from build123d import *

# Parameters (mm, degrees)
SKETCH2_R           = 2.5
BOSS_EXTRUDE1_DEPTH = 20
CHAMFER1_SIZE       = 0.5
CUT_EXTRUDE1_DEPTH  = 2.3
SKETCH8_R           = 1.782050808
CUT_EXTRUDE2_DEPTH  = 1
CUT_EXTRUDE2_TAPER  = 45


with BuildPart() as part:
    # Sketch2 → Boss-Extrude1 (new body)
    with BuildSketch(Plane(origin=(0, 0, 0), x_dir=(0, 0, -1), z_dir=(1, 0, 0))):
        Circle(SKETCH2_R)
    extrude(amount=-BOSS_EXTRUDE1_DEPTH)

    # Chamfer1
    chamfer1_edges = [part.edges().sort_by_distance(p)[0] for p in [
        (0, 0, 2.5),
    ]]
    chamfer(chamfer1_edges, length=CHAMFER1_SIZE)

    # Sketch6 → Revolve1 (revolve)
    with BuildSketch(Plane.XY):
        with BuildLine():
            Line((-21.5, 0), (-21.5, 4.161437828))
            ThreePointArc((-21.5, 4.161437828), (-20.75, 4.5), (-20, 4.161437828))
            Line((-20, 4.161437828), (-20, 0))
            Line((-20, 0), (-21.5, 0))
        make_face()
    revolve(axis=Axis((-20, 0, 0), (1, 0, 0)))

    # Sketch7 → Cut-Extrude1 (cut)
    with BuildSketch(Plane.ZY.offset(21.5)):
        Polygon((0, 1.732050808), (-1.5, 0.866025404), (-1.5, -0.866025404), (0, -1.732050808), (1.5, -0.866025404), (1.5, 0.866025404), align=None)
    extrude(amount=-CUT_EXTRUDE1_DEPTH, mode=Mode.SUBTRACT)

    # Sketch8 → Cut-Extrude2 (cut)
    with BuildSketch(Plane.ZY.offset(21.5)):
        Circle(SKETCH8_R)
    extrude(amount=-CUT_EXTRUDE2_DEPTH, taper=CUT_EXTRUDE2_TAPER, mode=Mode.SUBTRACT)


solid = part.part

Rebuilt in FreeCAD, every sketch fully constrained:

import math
import FreeCAD as App
import Part
import Sketcher
Q = App.Units.Quantity


def edges_at(feature, points):
    """Names of the edges that pass closest to the given points."""
    edges = feature.Shape.Edges
    near = lambda p: min(range(len(edges)), key=lambda i: edges[i].distToShape(Part.Vertex(*p))[0])
    return sorted({f"Edge{near(p) + 1}" for p in points})

doc = App.newDocument("Part")
body = doc.addObject("PartDesign::Body", "Body")

sketch1 = body.newObject("Sketcher::SketchObject", "Sketch")
sketch1.AttachmentSupport = (doc.getObject("YZ_Plane"), [""])
sketch1.MapMode = "FlatFace"
sketch1.addGeometry(Part.Circle(App.Vector(0, 0, 0), App.Vector(0, 0, 1), 2.5), False)
sketch1.addConstraint(Sketcher.Constraint("Coincident", 0, 3, -1, 1))
sketch1.addConstraint(Sketcher.Constraint("Diameter", 0, 5.0))
pad1 = body.newObject("PartDesign::Pad", "Pad")
pad1.Profile = sketch1
pad1.Length = 20
pad1.Reversed = True
doc.recompute()

chamfer = body.newObject("PartDesign::Chamfer", "Chamfer")
chamfer.Base = (pad1, edges_at(pad1, [(0, 0, 2.5)]))
chamfer.Size = 0.5

sketch2 = body.newObject("Sketcher::SketchObject", "Sketch001")
sketch2.AttachmentSupport = (doc.getObject("XY_Plane"), [""])
sketch2.MapMode = "FlatFace"
sketch2.addGeometry(Part.LineSegment(App.Vector(-21.5, 4.161438, 0), App.Vector(-21.5, 0, 0)), False)
sketch2.addGeometry(Part.LineSegment(App.Vector(-21.5, 0, 0), App.Vector(-20, 0, 0)), False)
sketch2.addGeometry(Part.LineSegment(App.Vector(-20, 0, 0), App.Vector(-20, 4.161438, 0)), False)
sketch2.addGeometry(Part.ArcOfCircle(Part.Circle(App.Vector(-20.75, 3.5, 0), App.Vector(0, 0, 1), 1), math.radians(41.409622), math.radians(138.590378)), False)
sketch2.addConstraint(Sketcher.Constraint("Coincident", 0, 2, 1, 1))
sketch2.addConstraint(Sketcher.Constraint("Coincident", 1, 2, 2, 1))
sketch2.addConstraint(Sketcher.Constraint("Coincident", 2, 2, 3, 1))
sketch2.addConstraint(Sketcher.Constraint("Coincident", 3, 2, 0, 1))
sketch2.addConstraint(Sketcher.Constraint("Vertical", 0))
sketch2.addConstraint(Sketcher.Constraint("Horizontal", 1))
sketch2.addConstraint(Sketcher.Constraint("Vertical", 2))
sketch2.addConstraint(Sketcher.Constraint("PointOnObject", 0, 2, -1))
sketch2.addConstraint(Sketcher.Constraint("Horizontal", 2, 2, 3, 2))
sketch2.addConstraint(Sketcher.Constraint("Radius", 3, 1.0))
sketch2.addConstraint(Sketcher.Constraint("DistanceX", 1, 1, 1, 2, 1.5))
sketch2.addConstraint(Sketcher.Constraint("DistanceX", 1, 2, -1, 1, 20.0))
sketch2.addConstraint(Sketcher.Constraint("DistanceY", -1, 1, 3, 3, 3.5))
revolution = body.newObject("PartDesign::Revolution", "Revolution")
revolution.Profile = sketch2
revolution.ReferenceAxis = (sketch2, ["H_Axis"])
revolution.Angle = 360

sketch3 = body.newObject("Sketcher::SketchObject", "Sketch002")
sketch3.AttachmentSupport = (doc.getObject("YZ_Plane"), [""])
sketch3.MapMode = "FlatFace"
sketch3.AttachmentOffset = App.Placement(App.Vector(0, 0, -21.5), App.Rotation())
sketch3.addGeometry(Part.LineSegment(App.Vector(1.732051, 0, 0), App.Vector(0.866025, -1.5, 0)), False)
sketch3.addGeometry(Part.LineSegment(App.Vector(0.866025, -1.5, 0), App.Vector(-0.866025, -1.5, 0)), False)
sketch3.addGeometry(Part.LineSegment(App.Vector(-0.866025, -1.5, 0), App.Vector(-1.732051, 0, 0)), False)
sketch3.addGeometry(Part.LineSegment(App.Vector(-1.732051, 0, 0), App.Vector(-0.866025, 1.5, 0)), False)
sketch3.addGeometry(Part.LineSegment(App.Vector(-0.866025, 1.5, 0), App.Vector(0.866025, 1.5, 0)), False)
sketch3.addGeometry(Part.LineSegment(App.Vector(0.866025, 1.5, 0), App.Vector(1.732051, 0, 0)), False)
sketch3.addConstraint(Sketcher.Constraint("Coincident", 0, 2, 1, 1))
sketch3.addConstraint(Sketcher.Constraint("Coincident", 1, 2, 2, 1))
sketch3.addConstraint(Sketcher.Constraint("Coincident", 2, 2, 3, 1))
sketch3.addConstraint(Sketcher.Constraint("Coincident", 3, 2, 4, 1))
sketch3.addConstraint(Sketcher.Constraint("Coincident", 4, 2, 5, 1))
sketch3.addConstraint(Sketcher.Constraint("Coincident", 5, 2, 0, 1))
sketch3.addConstraint(Sketcher.Constraint("Horizontal", 1))
sketch3.addConstraint(Sketcher.Constraint("Horizontal", 4))
sketch3.addConstraint(Sketcher.Constraint("Symmetric", 0, 2, 3, 2, -1, 1))
sketch3.addConstraint(Sketcher.Constraint("Symmetric", 2, 2, 5, 2, -1, 1))
sketch3.addConstraint(Sketcher.Constraint("PointOnObject", 2, 2, -1))
sketch3.addConstraint(Sketcher.Constraint("Parallel", 2, 5))
sketch3.addConstraint(Sketcher.Constraint("Vertical", 1, 2, 3, 2))
sketch3.addConstraint(Sketcher.Constraint("Angle", 0, Q("-120 deg")))
sketch3.addConstraint(Sketcher.Constraint("DistanceY", 1, 2, 3, 2, 3.0))
sketch3.addConstraint(Sketcher.Constraint("DistanceX", 1, 2, 1, 1, 1.732051))
pocket1 = body.newObject("PartDesign::Pocket", "Pocket")
pocket1.Profile = sketch3
pocket1.Length = 2.3
pocket1.Reversed = True

sketch4 = body.newObject("Sketcher::SketchObject", "Sketch003")
sketch4.AttachmentSupport = (doc.getObject("YZ_Plane"), [""])
sketch4.MapMode = "FlatFace"
sketch4.AttachmentOffset = App.Placement(App.Vector(0, 0, -21.5), App.Rotation())
sketch4.addGeometry(Part.Circle(App.Vector(0, 0, 0), App.Vector(0, 0, 1), 1.782051), False)
sketch4.addConstraint(Sketcher.Constraint("Coincident", 0, 3, -1, 1))
sketch4.addConstraint(Sketcher.Constraint("Diameter", 0, 3.564102))
pocket2 = body.newObject("PartDesign::Pocket", "Pocket001")
pocket2.Profile = sketch4
pocket2.Length = 1
pocket2.Reversed = True
pocket2.TaperAngle = -45

doc.recompute()
